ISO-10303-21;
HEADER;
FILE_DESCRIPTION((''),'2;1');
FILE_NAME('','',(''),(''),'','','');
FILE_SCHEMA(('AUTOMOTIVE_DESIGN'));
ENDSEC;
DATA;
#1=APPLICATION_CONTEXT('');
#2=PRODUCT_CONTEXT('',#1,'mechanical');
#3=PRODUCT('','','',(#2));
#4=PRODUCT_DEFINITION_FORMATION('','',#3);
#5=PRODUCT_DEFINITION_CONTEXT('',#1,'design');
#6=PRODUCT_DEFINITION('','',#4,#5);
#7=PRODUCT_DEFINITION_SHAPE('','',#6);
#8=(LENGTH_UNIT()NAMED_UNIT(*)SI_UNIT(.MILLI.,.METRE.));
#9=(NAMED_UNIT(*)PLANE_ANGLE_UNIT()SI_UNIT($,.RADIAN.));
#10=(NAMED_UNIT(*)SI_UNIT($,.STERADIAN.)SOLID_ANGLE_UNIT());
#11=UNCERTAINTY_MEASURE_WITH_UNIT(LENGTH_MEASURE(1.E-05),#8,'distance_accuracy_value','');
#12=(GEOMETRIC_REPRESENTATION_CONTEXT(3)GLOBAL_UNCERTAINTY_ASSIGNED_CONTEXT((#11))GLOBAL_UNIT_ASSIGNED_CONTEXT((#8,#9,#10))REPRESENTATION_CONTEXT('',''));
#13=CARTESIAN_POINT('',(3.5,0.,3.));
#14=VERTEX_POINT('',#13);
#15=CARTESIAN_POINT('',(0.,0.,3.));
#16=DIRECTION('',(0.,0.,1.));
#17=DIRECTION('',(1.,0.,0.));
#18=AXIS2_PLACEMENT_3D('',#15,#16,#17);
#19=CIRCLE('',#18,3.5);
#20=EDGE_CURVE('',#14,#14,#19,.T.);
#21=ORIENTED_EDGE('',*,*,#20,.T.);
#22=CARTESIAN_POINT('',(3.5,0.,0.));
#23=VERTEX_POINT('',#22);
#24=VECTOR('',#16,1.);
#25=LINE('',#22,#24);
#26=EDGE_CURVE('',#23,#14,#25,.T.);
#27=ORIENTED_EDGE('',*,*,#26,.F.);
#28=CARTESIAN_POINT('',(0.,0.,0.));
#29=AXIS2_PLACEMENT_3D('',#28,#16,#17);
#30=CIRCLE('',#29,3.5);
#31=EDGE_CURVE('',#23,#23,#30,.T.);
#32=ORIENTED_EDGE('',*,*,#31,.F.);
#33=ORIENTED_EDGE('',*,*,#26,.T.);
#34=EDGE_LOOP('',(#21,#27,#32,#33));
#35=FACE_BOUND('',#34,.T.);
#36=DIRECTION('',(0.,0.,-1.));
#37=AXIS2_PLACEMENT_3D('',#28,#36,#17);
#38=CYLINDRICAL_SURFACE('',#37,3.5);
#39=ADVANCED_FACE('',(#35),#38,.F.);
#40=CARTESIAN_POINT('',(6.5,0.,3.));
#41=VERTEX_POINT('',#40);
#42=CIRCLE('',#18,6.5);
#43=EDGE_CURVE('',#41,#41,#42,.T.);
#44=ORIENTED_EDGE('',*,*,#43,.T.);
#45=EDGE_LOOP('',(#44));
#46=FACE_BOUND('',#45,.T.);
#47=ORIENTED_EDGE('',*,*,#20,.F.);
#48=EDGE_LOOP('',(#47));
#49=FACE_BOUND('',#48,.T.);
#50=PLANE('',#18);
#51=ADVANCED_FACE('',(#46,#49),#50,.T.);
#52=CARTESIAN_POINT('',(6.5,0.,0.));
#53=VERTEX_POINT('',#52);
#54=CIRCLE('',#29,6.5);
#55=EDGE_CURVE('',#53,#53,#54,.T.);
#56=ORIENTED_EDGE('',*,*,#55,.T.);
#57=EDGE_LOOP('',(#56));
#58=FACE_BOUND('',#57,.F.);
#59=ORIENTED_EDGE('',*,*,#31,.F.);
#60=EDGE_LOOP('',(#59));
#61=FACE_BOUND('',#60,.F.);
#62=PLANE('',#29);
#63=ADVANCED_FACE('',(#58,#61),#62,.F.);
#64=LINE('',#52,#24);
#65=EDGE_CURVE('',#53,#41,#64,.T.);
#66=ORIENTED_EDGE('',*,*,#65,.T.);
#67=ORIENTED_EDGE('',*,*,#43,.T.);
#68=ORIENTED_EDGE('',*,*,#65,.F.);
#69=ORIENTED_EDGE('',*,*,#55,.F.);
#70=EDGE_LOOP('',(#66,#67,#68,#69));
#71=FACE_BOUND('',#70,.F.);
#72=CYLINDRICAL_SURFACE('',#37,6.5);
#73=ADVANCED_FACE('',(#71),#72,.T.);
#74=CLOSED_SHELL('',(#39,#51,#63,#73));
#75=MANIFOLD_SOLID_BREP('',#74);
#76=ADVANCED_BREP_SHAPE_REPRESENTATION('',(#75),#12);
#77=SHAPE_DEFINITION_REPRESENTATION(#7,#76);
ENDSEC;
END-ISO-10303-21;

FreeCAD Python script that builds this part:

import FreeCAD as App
import Part
import Sketcher

V = App.Vector
Q = App.Units.Quantity

doc = App.newDocument("Part")
body = doc.addObject("PartDesign::Body", "Body")

sketch1 = doc.addObject("Sketcher::SketchObject", "Sketch")
body.addObject(sketch1)
sketch1.AttachmentSupport = (doc.XY_Plane, [""])
sketch1.MapMode = "FlatFace"
sketch1.addGeometry([
    Part.Circle(V(0, 0, 0), V(0, 0, 1), 6.5),
    Part.Circle(V(0, 0, 0), V(0, 0, 1), 3.5),
], False)
sketch1.addConstraint([
    Sketcher.Constraint("Coincident", 0, 3, -1, 1),
    Sketcher.Constraint("Coincident", 1, 3, -1, 1),
    Sketcher.Constraint("Diameter", 0, Q("13 mm")),
    Sketcher.Constraint("Diameter", 1, Q("7 mm")),
])
pad1 = doc.addObject("PartDesign::Pad", "Pad")
body.addObject(pad1)
pad1.Profile = sketch1
pad1.Length = 3

doc.recompute()
